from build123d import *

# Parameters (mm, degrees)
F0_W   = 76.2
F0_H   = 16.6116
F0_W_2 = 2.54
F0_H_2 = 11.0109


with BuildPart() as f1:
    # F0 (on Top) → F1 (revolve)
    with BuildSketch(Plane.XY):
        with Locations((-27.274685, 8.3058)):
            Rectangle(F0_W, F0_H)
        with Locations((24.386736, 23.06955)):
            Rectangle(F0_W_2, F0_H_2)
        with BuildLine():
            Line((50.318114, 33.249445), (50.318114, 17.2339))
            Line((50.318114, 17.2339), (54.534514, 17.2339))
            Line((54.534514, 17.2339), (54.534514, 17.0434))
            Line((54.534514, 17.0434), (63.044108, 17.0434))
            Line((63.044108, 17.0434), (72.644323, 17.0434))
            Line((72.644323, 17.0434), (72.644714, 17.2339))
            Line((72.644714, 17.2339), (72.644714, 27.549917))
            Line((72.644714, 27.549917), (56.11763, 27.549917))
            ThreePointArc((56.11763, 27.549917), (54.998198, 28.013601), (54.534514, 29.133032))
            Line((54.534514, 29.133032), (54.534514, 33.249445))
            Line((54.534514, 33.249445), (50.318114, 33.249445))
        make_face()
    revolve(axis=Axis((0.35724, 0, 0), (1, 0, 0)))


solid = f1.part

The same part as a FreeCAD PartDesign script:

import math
import FreeCAD as App
import Part
import Sketcher
Q = App.Units.Quantity


def add_polygon(sketch, points):
    """Adds a closed chain of lines whose ends are joined by coincident constraints."""
    first, n = sketch.GeometryCount, len(points)
    for a, b in zip(points, points[1:] + points[:1]):
        sketch.addGeometry(Part.LineSegment(App.Vector(*a, 0), App.Vector(*b, 0)), False)
    for i in range(n):
        sketch.addConstraint(Sketcher.Constraint("Coincident", first + i, 2, first + (i + 1) % n, 1))

doc = App.newDocument("Part")
body = doc.addObject("PartDesign::Body", "Body")
body.AllowCompound = True

# Sketch on XY plane
sketch1 = doc.addObject("Sketcher::SketchObject", "Sketch")
body.addObject(sketch1)
sketch1.AttachmentSupport = (doc.XY_Plane, [""])
sketch1.MapMode = "FlatFace"
add_polygon(sketch1, [(-65.374685, 16.6116), (-65.374685, 0), (10.825315, 0), (10.825315, 16.6116)])  # lines 0-3
add_polygon(sketch1, [(23.116736, 28.575), (23.116736, 17.5641), (25.656736, 17.5641), (25.656736, 28.575)])  # lines 4-7
sketch1.addGeometry(Part.LineSegment(App.Vector(50.318114, 33.249445, 0), App.Vector(50.318114, 17.2339, 0)), False)  # 8
sketch1.addGeometry(Part.LineSegment(App.Vector(50.318114, 17.2339, 0), App.Vector(54.534514, 17.2339, 0)), False)  # 9
sketch1.addGeometry(Part.LineSegment(App.Vector(54.534514, 17.2339, 0), App.Vector(54.534514, 17.0434, 0)), False)  # 10
sketch1.addGeometry(Part.LineSegment(App.Vector(54.534514, 17.0434, 0), App.Vector(72.644323, 17.0434, 0)), False)  # 11
sketch1.addGeometry(Part.LineSegment(App.Vector(72.644323, 17.0434, 0), App.Vector(72.644714, 17.2339, 0)), False)  # 12
sketch1.addGeometry(Part.LineSegment(App.Vector(72.644714, 17.2339, 0), App.Vector(72.644714, 27.549917, 0)), False)  # 13
sketch1.addGeometry(Part.LineSegment(App.Vector(72.644714, 27.549917, 0), App.Vector(56.11763, 27.549917, 0)), False)  # 14
sketch1.addGeometry(Part.ArcOfCircle(Part.Circle(App.Vector(56.11763, 29.133033, 0), App.Vector(0, 0, 1), 1.583116), math.radians(-179.999957), math.radians(-90.000007)), False)  # 15
sketch1.addGeometry(Part.LineSegment(App.Vector(54.534514, 29.133032, 0), App.Vector(54.534514, 33.249445, 0)), False)  # 16
sketch1.addGeometry(Part.LineSegment(App.Vector(54.534514, 33.249445, 0), App.Vector(50.318114, 33.249445, 0)), False)  # 17
sketch1.addConstraint([
    Sketcher.Constraint("Coincident", 8, 2, 9, 1),
    Sketcher.Constraint("Coincident", 9, 2, 10, 1),
    Sketcher.Constraint("Coincident", 10, 2, 11, 1),
    Sketcher.Constraint("Coincident", 11, 2, 12, 1),
    Sketcher.Constraint("Coincident", 12, 2, 13, 1),
    Sketcher.Constraint("Coincident", 13, 2, 14, 1),
    Sketcher.Constraint("Tangent", 14, 2, 15, 2),
    Sketcher.Constraint("Tangent", 15, 1, 16, 1),
    Sketcher.Constraint("Coincident", 16, 2, 17, 1),
    Sketcher.Constraint("Coincident", 17, 2, 8, 1),
    Sketcher.Constraint("Vertical", 0),
    Sketcher.Constraint("Horizontal", 1),
    Sketcher.Constraint("Vertical", 2),
    Sketcher.Constraint("Horizontal", 3),
    Sketcher.Constraint("Vertical", 4),
    Sketcher.Constraint("Horizontal", 5),
    Sketcher.Constraint("Vertical", 6),
    Sketcher.Constraint("Horizontal", 7),
    Sketcher.Constraint("Vertical", 8),
    Sketcher.Constraint("Horizontal", 9),
    Sketcher.Constraint("Vertical", 10),
    Sketcher.Constraint("Horizontal", 11),
    Sketcher.Constraint("Vertical", 13),
    Sketcher.Constraint("Horizontal", 14),
    Sketcher.Constraint("Vertical", 16),
    Sketcher.Constraint("Horizontal", 17),
    Sketcher.Constraint("PointOnObject", 0, 2, -1),
    Sketcher.Constraint("Horizontal", 9, 2, 12, 2),
    Sketcher.Constraint("Vertical", 10, 2, 15, 1),
    Sketcher.Constraint("DistanceX", 1, 1, 1, 2, Q("3 in")),
    Sketcher.Constraint("DistanceX", 5, 1, 5, 2, Q("0.1 in")),
    Sketcher.Constraint("DistanceX", 9, 1, 9, 2, Q("0.166 in")),
    Sketcher.Constraint("DistanceY", 0, 2, 0, 1, Q("0.654 in")),
    Sketcher.Constraint("DistanceY", 4, 2, 4, 1, Q("0.4335 in")),
    Sketcher.Constraint("DistanceY", 10, 2, 10, 1, Q("0.0075 in")),
    Sketcher.Constraint("DistanceY", -1, 1, 6, 2, Q("1.125 in")),
    Sketcher.Constraint("DistanceY", -1, 1, 10, 2, Q("0.671 in")),
    Sketcher.Constraint("DistanceX", 9, 2, 12, 2, Q("0.713 in")),
    Sketcher.Constraint("Radius", 15, Q("1.583116 mm")),
    Sketcher.Constraint("DistanceX", 11, 1, 11, 2, Q("18.109809 mm")),
    Sketcher.Constraint("DistanceY", 8, 2, 8, 1, Q("16.015545 mm")),
    Sketcher.Constraint("DistanceY", 13, 1, 13, 2, Q("10.316017 mm")),
    Sketcher.Constraint("DistanceX", -1, 1, 15, 3, Q("56.11763 mm")),
    Sketcher.Constraint("DistanceX", 2, 2, 4, 2, Q("12.291421 mm")),
    Sketcher.Constraint("DistanceX", 5, 2, 8, 2, Q("24.661378 mm")),
])
revolution = doc.addObject("PartDesign::Revolution", "Revolution")
body.addObject(revolution)
revolution.Profile = sketch1
revolution.ReferenceAxis = (sketch1, ["H_Axis"])
revolution.Angle = 360

doc.recompute()
